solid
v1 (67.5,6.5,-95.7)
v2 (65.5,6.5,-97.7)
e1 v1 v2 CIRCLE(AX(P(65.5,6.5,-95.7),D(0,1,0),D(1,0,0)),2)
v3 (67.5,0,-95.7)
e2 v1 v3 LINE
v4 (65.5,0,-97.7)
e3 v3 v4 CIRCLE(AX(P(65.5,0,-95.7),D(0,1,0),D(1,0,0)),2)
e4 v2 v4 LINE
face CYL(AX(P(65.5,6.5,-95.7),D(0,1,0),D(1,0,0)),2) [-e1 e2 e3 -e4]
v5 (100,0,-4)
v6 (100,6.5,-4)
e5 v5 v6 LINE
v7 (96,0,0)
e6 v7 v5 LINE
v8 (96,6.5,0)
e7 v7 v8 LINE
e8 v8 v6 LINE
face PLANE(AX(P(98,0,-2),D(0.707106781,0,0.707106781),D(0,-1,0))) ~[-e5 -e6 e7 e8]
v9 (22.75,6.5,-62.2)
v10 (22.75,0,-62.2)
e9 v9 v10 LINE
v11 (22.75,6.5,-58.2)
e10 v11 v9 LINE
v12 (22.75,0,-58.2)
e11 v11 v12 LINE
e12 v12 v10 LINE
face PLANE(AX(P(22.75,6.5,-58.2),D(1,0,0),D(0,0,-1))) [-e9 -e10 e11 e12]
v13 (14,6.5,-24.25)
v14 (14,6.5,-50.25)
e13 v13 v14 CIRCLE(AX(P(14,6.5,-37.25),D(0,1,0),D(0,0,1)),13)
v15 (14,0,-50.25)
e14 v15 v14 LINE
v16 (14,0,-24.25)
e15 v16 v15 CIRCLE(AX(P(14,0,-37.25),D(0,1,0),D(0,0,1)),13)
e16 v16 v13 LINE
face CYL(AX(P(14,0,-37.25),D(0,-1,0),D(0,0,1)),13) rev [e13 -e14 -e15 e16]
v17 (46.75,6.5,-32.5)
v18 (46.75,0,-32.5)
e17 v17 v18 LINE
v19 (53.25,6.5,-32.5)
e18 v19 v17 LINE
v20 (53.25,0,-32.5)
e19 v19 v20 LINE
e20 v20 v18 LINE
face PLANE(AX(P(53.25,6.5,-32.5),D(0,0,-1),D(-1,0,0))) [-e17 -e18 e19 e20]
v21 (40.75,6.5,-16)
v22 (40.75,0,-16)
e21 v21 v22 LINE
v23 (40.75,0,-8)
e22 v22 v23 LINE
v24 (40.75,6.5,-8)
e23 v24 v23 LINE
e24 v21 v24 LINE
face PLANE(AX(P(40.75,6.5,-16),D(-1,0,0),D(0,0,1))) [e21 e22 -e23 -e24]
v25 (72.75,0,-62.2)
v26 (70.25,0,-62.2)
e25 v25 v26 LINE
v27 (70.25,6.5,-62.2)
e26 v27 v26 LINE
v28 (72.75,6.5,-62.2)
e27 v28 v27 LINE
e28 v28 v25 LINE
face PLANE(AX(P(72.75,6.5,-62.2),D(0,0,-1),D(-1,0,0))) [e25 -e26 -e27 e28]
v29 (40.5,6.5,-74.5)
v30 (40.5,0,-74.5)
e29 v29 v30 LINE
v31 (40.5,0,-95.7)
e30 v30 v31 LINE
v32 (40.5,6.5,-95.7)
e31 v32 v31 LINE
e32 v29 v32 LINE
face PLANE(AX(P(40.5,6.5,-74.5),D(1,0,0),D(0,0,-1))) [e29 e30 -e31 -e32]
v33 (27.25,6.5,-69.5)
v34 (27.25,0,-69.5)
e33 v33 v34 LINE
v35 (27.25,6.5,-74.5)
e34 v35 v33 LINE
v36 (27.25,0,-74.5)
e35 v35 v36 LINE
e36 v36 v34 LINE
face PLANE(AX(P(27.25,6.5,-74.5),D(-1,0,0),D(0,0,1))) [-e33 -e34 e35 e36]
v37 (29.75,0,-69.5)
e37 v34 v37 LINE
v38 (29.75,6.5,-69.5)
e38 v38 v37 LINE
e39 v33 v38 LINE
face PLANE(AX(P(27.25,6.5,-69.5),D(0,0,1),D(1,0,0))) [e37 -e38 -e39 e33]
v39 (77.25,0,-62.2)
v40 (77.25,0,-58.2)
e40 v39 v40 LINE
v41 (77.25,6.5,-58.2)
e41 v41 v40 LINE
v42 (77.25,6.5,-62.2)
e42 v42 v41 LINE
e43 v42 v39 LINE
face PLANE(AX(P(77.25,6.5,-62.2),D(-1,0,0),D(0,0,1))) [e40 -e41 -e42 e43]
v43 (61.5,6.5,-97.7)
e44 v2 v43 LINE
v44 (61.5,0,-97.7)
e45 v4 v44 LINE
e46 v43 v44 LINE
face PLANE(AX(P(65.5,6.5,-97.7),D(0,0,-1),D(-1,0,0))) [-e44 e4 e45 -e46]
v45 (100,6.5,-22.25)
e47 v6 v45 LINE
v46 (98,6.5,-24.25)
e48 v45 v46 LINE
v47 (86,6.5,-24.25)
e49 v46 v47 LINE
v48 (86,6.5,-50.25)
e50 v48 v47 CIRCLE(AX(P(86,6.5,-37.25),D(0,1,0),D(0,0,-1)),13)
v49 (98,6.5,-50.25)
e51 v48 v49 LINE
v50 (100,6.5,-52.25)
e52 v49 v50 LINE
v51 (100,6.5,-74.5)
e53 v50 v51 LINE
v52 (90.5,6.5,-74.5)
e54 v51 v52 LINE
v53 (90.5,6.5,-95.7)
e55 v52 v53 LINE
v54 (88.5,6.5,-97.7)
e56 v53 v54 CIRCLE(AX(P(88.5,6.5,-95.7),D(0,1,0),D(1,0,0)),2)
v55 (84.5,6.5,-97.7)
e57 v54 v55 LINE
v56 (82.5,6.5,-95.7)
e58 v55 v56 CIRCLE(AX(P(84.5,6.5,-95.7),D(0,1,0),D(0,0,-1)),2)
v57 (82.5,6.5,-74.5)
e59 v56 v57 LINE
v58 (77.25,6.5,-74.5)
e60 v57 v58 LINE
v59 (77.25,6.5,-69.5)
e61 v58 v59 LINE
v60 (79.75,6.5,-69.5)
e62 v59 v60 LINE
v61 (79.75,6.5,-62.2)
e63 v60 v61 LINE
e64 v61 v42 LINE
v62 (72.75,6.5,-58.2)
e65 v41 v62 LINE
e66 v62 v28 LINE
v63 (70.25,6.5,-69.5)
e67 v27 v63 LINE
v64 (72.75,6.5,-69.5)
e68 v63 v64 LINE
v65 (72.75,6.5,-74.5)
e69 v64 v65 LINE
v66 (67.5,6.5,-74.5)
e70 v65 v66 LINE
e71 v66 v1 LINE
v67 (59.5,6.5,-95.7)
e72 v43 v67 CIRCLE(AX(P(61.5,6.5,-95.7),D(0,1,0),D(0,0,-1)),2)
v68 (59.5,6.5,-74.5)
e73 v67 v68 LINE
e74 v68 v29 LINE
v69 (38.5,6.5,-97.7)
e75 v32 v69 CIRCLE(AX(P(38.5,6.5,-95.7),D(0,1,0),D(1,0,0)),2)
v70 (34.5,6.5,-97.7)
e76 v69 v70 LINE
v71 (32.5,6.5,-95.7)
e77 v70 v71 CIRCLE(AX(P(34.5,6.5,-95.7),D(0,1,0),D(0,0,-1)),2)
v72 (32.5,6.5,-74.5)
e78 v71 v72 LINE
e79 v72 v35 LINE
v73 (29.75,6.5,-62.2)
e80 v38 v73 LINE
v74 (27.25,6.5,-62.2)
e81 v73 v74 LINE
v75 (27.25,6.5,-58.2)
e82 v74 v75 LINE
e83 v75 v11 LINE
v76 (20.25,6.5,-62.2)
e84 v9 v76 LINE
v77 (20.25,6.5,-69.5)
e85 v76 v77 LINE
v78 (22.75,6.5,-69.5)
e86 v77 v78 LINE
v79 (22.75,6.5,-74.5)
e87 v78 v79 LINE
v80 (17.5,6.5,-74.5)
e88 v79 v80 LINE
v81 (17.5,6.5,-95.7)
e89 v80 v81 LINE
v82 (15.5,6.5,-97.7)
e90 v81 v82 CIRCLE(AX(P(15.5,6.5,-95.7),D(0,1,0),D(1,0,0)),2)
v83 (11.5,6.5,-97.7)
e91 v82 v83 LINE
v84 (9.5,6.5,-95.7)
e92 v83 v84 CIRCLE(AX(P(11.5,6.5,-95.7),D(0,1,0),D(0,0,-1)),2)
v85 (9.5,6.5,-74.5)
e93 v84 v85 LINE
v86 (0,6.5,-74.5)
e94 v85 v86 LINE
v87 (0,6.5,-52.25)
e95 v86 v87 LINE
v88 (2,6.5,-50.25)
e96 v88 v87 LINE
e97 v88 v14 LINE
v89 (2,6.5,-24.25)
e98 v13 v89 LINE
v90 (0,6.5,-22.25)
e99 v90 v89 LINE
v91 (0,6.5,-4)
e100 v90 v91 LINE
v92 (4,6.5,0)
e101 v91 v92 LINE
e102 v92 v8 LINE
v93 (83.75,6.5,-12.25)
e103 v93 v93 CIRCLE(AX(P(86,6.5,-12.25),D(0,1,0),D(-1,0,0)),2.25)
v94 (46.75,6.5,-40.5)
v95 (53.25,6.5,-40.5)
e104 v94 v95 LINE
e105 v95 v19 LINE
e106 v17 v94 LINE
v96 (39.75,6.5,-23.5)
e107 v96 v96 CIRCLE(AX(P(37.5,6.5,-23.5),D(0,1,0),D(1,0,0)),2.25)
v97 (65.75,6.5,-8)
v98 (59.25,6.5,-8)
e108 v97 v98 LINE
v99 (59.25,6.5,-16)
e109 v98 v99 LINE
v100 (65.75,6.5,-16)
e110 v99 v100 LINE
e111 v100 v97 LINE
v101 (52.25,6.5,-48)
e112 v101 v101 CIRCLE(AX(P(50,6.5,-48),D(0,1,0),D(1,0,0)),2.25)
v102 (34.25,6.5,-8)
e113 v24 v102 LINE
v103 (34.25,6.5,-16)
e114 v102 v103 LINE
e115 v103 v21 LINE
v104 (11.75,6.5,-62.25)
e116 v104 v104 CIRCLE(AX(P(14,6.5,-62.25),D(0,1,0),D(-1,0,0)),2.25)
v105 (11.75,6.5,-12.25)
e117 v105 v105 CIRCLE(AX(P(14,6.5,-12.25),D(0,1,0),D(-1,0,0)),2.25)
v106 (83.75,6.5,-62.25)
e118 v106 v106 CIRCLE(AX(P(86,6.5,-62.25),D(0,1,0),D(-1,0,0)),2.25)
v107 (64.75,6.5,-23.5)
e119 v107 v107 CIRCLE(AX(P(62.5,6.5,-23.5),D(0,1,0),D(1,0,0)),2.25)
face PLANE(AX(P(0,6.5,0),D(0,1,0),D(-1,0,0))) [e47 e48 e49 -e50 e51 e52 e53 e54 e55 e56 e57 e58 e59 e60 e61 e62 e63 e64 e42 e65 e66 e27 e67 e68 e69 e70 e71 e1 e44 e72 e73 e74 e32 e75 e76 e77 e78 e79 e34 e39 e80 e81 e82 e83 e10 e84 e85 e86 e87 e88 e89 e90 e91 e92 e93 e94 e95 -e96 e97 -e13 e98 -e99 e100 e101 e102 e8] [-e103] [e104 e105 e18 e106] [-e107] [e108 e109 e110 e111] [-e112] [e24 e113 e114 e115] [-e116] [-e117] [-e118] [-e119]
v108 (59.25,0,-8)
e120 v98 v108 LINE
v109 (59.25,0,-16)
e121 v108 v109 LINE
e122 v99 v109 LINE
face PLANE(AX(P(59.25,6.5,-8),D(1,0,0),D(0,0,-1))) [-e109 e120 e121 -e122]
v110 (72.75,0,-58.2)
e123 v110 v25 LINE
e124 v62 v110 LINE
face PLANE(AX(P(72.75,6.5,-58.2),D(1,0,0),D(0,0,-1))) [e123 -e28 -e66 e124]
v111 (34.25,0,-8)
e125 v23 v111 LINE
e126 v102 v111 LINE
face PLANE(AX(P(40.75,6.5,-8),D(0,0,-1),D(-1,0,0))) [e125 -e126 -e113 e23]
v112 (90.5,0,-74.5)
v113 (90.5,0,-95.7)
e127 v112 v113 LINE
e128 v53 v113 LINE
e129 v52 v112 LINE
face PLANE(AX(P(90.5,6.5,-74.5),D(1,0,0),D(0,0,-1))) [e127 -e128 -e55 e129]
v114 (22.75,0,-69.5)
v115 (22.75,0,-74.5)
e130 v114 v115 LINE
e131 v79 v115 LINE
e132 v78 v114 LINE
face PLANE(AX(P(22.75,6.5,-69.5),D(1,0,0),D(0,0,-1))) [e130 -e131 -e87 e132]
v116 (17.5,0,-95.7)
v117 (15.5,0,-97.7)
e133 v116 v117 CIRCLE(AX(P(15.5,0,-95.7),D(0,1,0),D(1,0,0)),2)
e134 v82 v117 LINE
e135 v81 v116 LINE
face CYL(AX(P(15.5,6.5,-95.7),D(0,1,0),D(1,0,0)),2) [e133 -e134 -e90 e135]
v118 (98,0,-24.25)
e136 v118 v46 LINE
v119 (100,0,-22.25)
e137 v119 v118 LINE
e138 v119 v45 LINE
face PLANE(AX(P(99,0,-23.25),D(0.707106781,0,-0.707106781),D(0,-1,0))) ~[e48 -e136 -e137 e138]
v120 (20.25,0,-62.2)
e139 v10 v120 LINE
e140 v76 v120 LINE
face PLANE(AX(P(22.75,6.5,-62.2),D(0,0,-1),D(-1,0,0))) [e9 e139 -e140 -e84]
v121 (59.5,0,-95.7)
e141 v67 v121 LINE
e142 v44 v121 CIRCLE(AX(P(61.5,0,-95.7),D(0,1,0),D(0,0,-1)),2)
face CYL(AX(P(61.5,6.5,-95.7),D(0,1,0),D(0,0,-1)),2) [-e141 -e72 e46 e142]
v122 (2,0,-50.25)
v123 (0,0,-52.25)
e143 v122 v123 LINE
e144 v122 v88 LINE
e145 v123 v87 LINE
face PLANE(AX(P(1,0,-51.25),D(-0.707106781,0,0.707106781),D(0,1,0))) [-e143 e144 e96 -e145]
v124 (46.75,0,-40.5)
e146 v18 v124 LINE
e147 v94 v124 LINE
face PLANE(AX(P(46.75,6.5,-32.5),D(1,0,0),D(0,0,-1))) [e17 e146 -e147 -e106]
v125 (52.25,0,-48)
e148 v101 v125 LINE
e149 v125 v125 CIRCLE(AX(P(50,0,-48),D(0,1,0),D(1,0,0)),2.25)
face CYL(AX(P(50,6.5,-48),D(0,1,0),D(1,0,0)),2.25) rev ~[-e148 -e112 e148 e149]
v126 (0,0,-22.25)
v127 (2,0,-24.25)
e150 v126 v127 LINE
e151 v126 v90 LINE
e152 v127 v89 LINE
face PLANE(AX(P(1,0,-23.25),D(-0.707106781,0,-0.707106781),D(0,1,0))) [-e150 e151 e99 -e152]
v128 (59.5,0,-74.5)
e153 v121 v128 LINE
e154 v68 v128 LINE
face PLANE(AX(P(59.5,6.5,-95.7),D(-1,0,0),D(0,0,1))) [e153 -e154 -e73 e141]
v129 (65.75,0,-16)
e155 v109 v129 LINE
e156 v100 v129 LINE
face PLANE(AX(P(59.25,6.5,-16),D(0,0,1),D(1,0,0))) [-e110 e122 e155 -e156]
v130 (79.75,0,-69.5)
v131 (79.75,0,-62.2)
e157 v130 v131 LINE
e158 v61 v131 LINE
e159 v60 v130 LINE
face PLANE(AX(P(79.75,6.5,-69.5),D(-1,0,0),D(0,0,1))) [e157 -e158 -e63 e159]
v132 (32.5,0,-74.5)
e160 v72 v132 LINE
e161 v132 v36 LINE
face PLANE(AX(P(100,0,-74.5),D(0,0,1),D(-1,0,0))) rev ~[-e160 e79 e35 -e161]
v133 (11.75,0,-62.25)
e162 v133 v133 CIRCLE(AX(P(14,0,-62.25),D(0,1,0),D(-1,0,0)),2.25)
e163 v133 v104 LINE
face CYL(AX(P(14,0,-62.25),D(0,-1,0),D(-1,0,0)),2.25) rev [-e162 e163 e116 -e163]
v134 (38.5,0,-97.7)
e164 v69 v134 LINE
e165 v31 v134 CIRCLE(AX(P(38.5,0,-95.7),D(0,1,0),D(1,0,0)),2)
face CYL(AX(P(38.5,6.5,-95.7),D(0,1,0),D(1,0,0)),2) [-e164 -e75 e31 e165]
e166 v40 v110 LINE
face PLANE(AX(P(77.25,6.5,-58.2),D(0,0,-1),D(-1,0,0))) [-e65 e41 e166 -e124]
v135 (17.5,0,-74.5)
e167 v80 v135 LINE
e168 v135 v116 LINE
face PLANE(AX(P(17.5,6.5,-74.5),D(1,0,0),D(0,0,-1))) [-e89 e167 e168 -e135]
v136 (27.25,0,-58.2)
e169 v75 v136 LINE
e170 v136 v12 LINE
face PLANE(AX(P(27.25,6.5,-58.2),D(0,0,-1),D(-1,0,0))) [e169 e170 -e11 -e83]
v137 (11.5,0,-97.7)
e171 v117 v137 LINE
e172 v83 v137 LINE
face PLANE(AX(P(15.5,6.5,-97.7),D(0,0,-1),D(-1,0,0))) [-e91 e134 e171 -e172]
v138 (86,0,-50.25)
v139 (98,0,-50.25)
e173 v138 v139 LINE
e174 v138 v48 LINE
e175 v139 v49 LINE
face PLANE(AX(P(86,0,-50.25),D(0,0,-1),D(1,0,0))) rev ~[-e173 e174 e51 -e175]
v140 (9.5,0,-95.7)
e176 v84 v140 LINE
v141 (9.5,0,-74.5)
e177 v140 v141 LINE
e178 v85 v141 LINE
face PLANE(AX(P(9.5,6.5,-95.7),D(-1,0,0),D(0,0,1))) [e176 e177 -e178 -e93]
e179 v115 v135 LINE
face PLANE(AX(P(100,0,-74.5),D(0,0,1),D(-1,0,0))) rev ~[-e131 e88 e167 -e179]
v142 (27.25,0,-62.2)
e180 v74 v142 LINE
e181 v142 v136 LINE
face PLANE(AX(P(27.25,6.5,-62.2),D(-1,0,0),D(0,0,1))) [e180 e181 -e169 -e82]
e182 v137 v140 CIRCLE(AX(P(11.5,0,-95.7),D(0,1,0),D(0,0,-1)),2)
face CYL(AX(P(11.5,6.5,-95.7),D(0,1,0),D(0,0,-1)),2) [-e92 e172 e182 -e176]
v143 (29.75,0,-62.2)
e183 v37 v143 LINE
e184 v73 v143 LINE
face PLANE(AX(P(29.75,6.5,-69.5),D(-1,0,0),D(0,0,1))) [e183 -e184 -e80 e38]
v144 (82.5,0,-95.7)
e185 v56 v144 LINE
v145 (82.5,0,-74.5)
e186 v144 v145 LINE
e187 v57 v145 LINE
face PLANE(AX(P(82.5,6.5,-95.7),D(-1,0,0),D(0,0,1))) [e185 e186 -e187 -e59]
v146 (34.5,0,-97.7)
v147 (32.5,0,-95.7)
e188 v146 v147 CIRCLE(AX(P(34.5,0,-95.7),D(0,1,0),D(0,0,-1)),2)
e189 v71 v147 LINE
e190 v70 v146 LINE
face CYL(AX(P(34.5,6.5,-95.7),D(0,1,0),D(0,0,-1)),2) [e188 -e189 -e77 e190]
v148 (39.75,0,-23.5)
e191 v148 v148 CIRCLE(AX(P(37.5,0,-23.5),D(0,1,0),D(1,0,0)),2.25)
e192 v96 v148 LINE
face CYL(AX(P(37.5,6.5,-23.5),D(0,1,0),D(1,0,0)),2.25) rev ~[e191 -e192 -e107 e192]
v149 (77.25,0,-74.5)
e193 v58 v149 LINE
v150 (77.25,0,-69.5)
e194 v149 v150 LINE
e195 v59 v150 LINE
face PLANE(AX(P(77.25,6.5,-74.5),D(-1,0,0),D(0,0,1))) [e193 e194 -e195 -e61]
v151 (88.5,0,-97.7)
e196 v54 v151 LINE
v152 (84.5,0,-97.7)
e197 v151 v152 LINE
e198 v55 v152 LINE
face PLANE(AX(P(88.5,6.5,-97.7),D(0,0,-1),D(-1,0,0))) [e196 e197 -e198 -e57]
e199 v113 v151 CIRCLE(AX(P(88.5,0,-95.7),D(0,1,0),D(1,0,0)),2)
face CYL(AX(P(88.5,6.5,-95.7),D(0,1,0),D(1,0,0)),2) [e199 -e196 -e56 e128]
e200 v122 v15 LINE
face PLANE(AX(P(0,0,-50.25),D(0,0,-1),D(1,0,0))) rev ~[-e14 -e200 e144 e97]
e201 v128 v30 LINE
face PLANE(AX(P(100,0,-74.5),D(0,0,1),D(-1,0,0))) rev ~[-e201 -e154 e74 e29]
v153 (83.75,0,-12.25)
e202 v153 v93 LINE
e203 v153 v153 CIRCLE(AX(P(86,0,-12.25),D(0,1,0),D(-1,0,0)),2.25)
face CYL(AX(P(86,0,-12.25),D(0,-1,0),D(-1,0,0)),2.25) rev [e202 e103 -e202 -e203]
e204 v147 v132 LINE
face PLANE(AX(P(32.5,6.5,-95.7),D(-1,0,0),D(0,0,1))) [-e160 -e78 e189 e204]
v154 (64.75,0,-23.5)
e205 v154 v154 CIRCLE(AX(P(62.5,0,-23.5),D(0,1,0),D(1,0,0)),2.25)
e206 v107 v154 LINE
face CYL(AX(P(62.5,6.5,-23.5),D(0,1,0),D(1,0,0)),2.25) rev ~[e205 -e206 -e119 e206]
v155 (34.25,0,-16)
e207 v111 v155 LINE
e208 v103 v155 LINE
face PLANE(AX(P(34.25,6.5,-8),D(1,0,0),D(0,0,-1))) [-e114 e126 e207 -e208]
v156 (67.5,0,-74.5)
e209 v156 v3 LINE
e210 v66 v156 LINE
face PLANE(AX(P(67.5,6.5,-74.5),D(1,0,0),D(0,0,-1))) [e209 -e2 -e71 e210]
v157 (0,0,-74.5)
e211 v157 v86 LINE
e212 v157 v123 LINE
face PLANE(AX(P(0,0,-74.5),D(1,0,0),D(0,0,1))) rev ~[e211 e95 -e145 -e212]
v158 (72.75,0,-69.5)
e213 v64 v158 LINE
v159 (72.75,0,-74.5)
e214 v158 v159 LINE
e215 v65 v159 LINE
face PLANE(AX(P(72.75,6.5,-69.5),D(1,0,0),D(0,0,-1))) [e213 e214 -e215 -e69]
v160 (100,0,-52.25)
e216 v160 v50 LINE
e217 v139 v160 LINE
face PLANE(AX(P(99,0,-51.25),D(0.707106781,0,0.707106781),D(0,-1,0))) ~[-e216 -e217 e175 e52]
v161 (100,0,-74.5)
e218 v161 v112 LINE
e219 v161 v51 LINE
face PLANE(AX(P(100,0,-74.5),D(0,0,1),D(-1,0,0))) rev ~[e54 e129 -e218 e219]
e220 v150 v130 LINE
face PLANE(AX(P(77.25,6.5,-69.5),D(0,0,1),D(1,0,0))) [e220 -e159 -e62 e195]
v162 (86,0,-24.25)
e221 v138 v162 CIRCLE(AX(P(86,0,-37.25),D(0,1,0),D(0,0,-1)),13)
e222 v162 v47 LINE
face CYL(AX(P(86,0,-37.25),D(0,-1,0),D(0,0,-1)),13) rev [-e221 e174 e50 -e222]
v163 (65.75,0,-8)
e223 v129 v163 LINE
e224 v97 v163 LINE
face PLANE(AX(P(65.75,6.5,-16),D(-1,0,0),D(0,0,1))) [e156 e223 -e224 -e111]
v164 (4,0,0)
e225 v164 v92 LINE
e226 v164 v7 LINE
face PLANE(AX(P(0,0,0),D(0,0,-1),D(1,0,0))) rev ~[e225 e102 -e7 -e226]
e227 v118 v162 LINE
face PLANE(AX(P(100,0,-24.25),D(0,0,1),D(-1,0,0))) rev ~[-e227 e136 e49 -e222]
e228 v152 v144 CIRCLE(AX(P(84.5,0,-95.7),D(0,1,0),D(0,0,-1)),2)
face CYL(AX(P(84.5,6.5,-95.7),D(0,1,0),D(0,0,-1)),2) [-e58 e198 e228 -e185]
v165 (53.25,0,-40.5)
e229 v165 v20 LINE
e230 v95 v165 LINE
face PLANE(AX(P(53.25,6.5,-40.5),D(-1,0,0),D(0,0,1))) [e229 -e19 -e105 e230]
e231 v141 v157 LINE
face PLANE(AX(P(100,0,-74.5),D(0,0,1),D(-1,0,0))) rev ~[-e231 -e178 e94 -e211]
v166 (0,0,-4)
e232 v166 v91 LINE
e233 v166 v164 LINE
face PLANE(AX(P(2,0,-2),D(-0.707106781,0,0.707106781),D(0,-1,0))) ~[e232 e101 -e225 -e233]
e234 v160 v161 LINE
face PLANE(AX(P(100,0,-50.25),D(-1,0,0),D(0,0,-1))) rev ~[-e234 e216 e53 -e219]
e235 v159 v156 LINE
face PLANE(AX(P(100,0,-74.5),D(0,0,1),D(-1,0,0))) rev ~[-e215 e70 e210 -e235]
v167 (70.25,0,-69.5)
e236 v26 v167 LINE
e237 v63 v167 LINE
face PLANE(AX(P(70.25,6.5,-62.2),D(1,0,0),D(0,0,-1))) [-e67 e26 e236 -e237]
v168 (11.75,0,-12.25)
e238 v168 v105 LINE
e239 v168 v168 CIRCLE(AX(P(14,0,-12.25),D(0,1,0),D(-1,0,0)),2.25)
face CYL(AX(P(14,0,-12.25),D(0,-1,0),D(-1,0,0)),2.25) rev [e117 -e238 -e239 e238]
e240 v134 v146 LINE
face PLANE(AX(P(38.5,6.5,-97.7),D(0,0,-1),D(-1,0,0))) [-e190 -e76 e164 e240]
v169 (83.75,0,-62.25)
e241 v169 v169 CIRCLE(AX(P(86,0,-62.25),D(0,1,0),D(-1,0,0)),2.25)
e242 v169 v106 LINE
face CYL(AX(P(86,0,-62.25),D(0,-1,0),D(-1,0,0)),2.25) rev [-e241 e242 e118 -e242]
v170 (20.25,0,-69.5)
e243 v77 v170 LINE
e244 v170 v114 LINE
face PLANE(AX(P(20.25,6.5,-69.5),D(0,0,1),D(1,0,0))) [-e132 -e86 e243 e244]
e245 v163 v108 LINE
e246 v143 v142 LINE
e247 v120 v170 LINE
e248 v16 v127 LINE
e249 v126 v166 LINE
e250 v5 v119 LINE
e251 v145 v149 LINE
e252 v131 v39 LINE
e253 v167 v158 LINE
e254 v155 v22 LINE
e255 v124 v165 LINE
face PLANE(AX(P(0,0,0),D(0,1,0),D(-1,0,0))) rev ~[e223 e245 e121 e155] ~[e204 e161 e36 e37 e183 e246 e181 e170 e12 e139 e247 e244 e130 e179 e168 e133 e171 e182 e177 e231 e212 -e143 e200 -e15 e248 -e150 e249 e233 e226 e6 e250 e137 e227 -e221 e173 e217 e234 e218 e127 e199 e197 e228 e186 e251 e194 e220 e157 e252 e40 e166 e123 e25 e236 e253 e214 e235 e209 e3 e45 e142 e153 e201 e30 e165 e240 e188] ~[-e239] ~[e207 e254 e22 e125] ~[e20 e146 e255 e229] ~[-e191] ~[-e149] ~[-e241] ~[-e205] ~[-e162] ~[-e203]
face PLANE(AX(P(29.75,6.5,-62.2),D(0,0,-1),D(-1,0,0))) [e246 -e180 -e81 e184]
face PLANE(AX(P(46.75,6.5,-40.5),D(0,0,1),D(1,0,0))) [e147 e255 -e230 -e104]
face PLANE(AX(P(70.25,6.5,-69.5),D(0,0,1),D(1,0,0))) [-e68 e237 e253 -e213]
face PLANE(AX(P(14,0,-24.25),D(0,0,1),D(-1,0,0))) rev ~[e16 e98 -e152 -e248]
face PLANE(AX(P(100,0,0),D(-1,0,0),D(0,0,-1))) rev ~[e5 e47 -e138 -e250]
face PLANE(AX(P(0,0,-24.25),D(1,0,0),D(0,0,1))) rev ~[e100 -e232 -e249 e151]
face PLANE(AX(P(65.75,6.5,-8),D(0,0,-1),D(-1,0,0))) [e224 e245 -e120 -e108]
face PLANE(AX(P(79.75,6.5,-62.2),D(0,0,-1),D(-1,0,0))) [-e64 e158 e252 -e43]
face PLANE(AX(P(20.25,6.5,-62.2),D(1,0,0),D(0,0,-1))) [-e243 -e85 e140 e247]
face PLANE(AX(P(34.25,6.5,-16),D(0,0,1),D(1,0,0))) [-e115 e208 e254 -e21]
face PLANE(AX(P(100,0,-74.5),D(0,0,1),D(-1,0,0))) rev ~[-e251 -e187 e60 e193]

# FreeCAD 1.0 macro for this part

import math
import FreeCAD as App
import Part
import Sketcher


def edges_at(feature, points):
    """Names of the edges that pass closest to the given points."""
    edges = feature.Shape.Edges
    near = lambda p: min(range(len(edges)), key=lambda i: edges[i].distToShape(Part.Vertex(*p))[0])
    return sorted({f"Edge{near(p) + 1}" for p in points})


def add_polygon(sketch, points):
    """Adds a closed chain of lines whose ends are joined by coincident constraints."""
    first, n = sketch.GeometryCount, len(points)
    for a, b in zip(points, points[1:] + points[:1]):
        sketch.addGeometry(Part.LineSegment(App.Vector(*a, 0), App.Vector(*b, 0)), False)
    for i in range(n):
        sketch.addConstraint(Sketcher.Constraint("Coincident", first + i, 2, first + (i + 1) % n, 1))

doc = App.newDocument("Part")
params = doc.addObject("Spreadsheet::Sheet", "Params")
for row, (alias, value) in enumerate([
    ("sketch1_radius", "13 mm"),
    ("sketch1_diameter", "4.5 mm"),
    ("sketch1_width", "100 mm"),
    ("sketch1_width2", "14 mm"),
    ("pad1_length", "6.5 mm"),
    ("sketch2_height", "5 mm"),
    ("sketch2_height2", "4 mm"),
    ("sketch2_width", "4.5 mm"),
    ("sketch2_width2", "2.5 mm"),
    ("sketch2_height3", "7.3 mm"),
    ("sketch3_radius", "2 mm"),
    ("sketch3_width", "8 mm"),
    ("pad2_length", "6.5 mm"),
    ("chamfer_size", "4 mm"),
    ("chamfer2_size", "2 mm"),
    ("sketch4_diameter", "4.5 mm"),
    ("sketch4_height", "8 mm"),
    ("sketch4_width", "6.5 mm"),
    ("sketch5_diameter", "4.5 mm"),
    ("sketch5_height", "8 mm"),
    ("sketch5_width", "6.5 mm"),
], start=1):
    params.set(f"A{row}", alias)
    params.set(f"B{row}", "=" + value)
    params.setAlias(f"B{row}", alias)

body = doc.addObject("PartDesign::Body", "Body")

# Sketch on XZ plane
sketch1 = body.newObject("Sketcher::SketchObject", "Sketch")
sketch1.AttachmentSupport = (doc.getObject("XZ_Plane"), [""])
sketch1.MapMode = "FlatFace"
sketch1.addGeometry(Part.LineSegment(App.Vector(0, -24.2, 0), App.Vector(0, 0, 0)), False)
sketch1.addGeometry(Part.LineSegment(App.Vector(0, 0, 0), App.Vector(100, 0, 0)), False)
sketch1.addGeometry(Part.LineSegment(App.Vector(100, 0, 0), App.Vector(100, -24.2, 0)), False)
sketch1.addGeometry(Part.LineSegment(App.Vector(100, -24.2, 0), App.Vector(86, -24.2, 0)), False)
sketch1.addGeometry(Part.ArcOfCircle(Part.Circle(App.Vector(86, -37.2, 0), App.Vector(0, 0, 1), 13), math.radians(90), math.radians(270)), False)
sketch1.addGeometry(Part.LineSegment(App.Vector(86, -50.2, 0), App.Vector(100, -50.2, 0)), False)
sketch1.addGeometry(Part.LineSegment(App.Vector(100, -50.2, 0), App.Vector(100, -74.5, 0)), False)
sketch1.addGeometry(Part.LineSegment(App.Vector(100, -74.5, 0), App.Vector(0, -74.5, 0)), False)
sketch1.addGeometry(Part.LineSegment(App.Vector(0, -74.5, 0), App.Vector(0, -50.2, 0)), False)
sketch1.addGeometry(Part.LineSegment(App.Vector(0, -50.2, 0), App.Vector(14, -50.2, 0)), False)
sketch1.addGeometry(Part.ArcOfCircle(Part.Circle(App.Vector(14, -37.2, 0), App.Vector(0, 0, 1), 13), math.radians(-90), math.radians(90)), False)
sketch1.addGeometry(Part.LineSegment(App.Vector(14, -24.2, 0), App.Vector(0, -24.2, 0)), False)
sketch1.addGeometry(Part.Circle(App.Vector(86, -62.2, 0), App.Vector(0, 0, 1), 2.2), False)
sketch1.addGeometry(Part.Circle(App.Vector(14, -62.2, 0), App.Vector(0, 0, 1), 2.2), False)
sketch1.addGeometry(Part.Circle(App.Vector(86, -12.2, 0), App.Vector(0, 0, 1), 2.2), False)
sketch1.addGeometry(Part.Circle(App.Vector(14, -12.2, 0), App.Vector(0, 0, 1), 2.2), False)
sketch1.addConstraint(Sketcher.Constraint("Coincident", 0, 2, 1, 1))
sketch1.addConstraint(Sketcher.Constraint("Coincident", 1, 2, 2, 1))
sketch1.addConstraint(Sketcher.Constraint("Coincident", 2, 2, 3, 1))
sketch1.addConstraint(Sketcher.Constraint("Tangent", 3, 2, 4, 1))
sketch1.addConstraint(Sketcher.Constraint("Tangent", 4, 2, 5, 1))
sketch1.addConstraint(Sketcher.Constraint("Coincident", 5, 2, 6, 1))
sketch1.addConstraint(Sketcher.Constraint("Coincident", 6, 2, 7, 1))
sketch1.addConstraint(Sketcher.Constraint("Coincident", 7, 2, 8, 1))
sketch1.addConstraint(Sketcher.Constraint("Coincident", 8, 2, 9, 1))
sketch1.addConstraint(Sketcher.Constraint("Tangent", 9, 2, 10, 1))
sketch1.addConstraint(Sketcher.Constraint("Tangent", 10, 2, 11, 1))
sketch1.addConstraint(Sketcher.Constraint("Coincident", 11, 2, 0, 1))
sketch1.addConstraint(Sketcher.Constraint("Vertical", 0))
sketch1.addConstraint(Sketcher.Constraint("Horizontal", 1))
sketch1.addConstraint(Sketcher.Constraint("Vertical", 2))
sketch1.addConstraint(Sketcher.Constraint("Horizontal", 3))
sketch1.addConstraint(Sketcher.Constraint("Horizontal", 5))
sketch1.addConstraint(Sketcher.Constraint("Vertical", 6))
sketch1.addConstraint(Sketcher.Constraint("Horizontal", 7))
sketch1.addConstraint(Sketcher.Constraint("Vertical", 8))
sketch1.addConstraint(Sketcher.Constraint("Horizontal", 9))
sketch1.addConstraint(Sketcher.Constraint("Horizontal", 11))
sketch1.addConstraint(Sketcher.Constraint("Coincident", 0, 2, -1, 1))
sketch1.addConstraint(Sketcher.Constraint("Equal", 4, 10))
sketch1.addConstraint(Sketcher.Constraint("Equal", 12, 13))
sketch1.addConstraint(Sketcher.Constraint("Equal", 13, 14))
sketch1.addConstraint(Sketcher.Constraint("Equal", 14, 15))
sketch1.addConstraint(Sketcher.Constraint("PointOnObject", 7, 2, -2))
sketch1.addConstraint(Sketcher.Constraint("Horizontal", 4, 3, 10, 3))
sketch1.addConstraint(Sketcher.Constraint("Horizontal", 12, 3, 13, 3))
sketch1.addConstraint(Sketcher.Constraint("Horizontal", 14, 3, 15, 3))
sketch1.addConstraint(Sketcher.Constraint("Vertical", 4, 3, 12, 3))
sketch1.addConstraint(Sketcher.Constraint("Vertical", 10, 3, 13, 3))
sketch1.addConstraint(Sketcher.Constraint("Vertical", 12, 3, 14, 3))
sketch1.addConstraint(Sketcher.Constraint("Vertical", 13, 3, 15, 3))
sketch1.addConstraint(Sketcher.Constraint("Vertical", 2, 2, 5, 2))
sketch1.addConstraint(Sketcher.Constraint("Equal", 5, 9))
sketch1.addConstraint(Sketcher.Constraint("Equal", 2, 6))
sketch1.addConstraint(Sketcher.Constraint("Radius", 4, 13.0))
sketch1.addConstraint(Sketcher.Constraint("Diameter", 12, 4.5))
sketch1.addConstraint(Sketcher.Constraint("DistanceX", 1, 1, 1, 2, 100.0))
sketch1.addConstraint(Sketcher.Constraint("DistanceX", 3, 2, 3, 1, 14.0))
sketch1.addConstraint(Sketcher.Constraint("DistanceY", 12, 3, 4, 3, 25.0))
sketch1.addConstraint(Sketcher.Constraint("DistanceY", 4, 3, 14, 3, 25.0))
sketch1.addConstraint(Sketcher.Constraint("DistanceY", 14, 3, -1, 1, 12.25))
sketch1.setExpression("Constraints[38]", "Params.sketch1_radius")
sketch1.setExpression("Constraints[39]", "Params.sketch1_diameter")
sketch1.setExpression("Constraints[40]", "Params.sketch1_width")
sketch1.setExpression("Constraints[41]", "Params.sketch1_width2")
pad1 = body.newObject("PartDesign::Pad", "Pad")
pad1.Profile = sketch1
pad1.setExpression("Length", "Params.pad1_length")
pad1.Reversed = True

# Sketch on XZ plane
sketch2 = body.newObject("Sketcher::SketchObject", "Sketch001")
sketch2.AttachmentSupport = (doc.getObject("XZ_Plane"), [""])
sketch2.MapMode = "FlatFace"
sketch2.AttachmentOffset = App.Placement(App.Vector(0, 0, -6.5), App.Rotation())
add_polygon(sketch2, [(77.2, -69.5), (77.2, -74.5), (72.8, -74.5), (72.8, -69.5), (70.2, -69.5), (70.2, -62.2), (72.8, -62.2), (72.8, -58.2), (77.2, -58.2), (77.2, -62.2), (79.8, -62.2), (79.8, -69.5)])  # lines 0-11
add_polygon(sketch2, [(27.2, -69.5), (27.2, -74.5), (22.8, -74.5), (22.8, -69.5), (20.2, -69.5), (20.2, -62.2), (22.8, -62.2), (22.8, -58.2), (27.2, -58.2), (27.2, -62.2), (29.8, -62.2), (29.8, -69.5)])  # lines 12-23
sketch2.addConstraint(Sketcher.Constraint("Vertical", 0))
sketch2.addConstraint(Sketcher.Constraint("Horizontal", 1))
sketch2.addConstraint(Sketcher.Constraint("Vertical", 2))
sketch2.addConstraint(Sketcher.Constraint("Horizontal", 3))
sketch2.addConstraint(Sketcher.Constraint("Vertical", 4))
sketch2.addConstraint(Sketcher.Constraint("Horizontal", 5))
sketch2.addConstraint(Sketcher.Constraint("Vertical", 6))
sketch2.addConstraint(Sketcher.Constraint("Horizontal", 7))
sketch2.addConstraint(Sketcher.Constraint("Vertical", 8))
sketch2.addConstraint(Sketcher.Constraint("Horizontal", 9))
sketch2.addConstraint(Sketcher.Constraint("Vertical", 10))
sketch2.addConstraint(Sketcher.Constraint("Horizontal", 11))
sketch2.addConstraint(Sketcher.Constraint("Vertical", 12))
sketch2.addConstraint(Sketcher.Constraint("Horizontal", 13))
sketch2.addConstraint(Sketcher.Constraint("Vertical", 14))
sketch2.addConstraint(Sketcher.Constraint("Horizontal", 15))
sketch2.addConstraint(Sketcher.Constraint("Vertical", 16))
sketch2.addConstraint(Sketcher.Constraint("Horizontal", 17))
sketch2.addConstraint(Sketcher.Constraint("Vertical", 18))
sketch2.addConstraint(Sketcher.Constraint("Horizontal", 19))
sketch2.addConstraint(Sketcher.Constraint("Vertical", 20))
sketch2.addConstraint(Sketcher.Constraint("Horizontal", 21))
sketch2.addConstraint(Sketcher.Constraint("Vertical", 22))
sketch2.addConstraint(Sketcher.Constraint("Horizontal", 23))
sketch2.addConstraint(Sketcher.Constraint("Horizontal", 5, 2, 8, 2))
sketch2.addConstraint(Sketcher.Constraint("Horizontal", 3, 2, 10, 2))
sketch2.addConstraint(Sketcher.Constraint("Horizontal", 1, 2, 12, 2))
sketch2.addConstraint(Sketcher.Constraint("Horizontal", 11, 2, 14, 2))
sketch2.addConstraint(Sketcher.Constraint("Horizontal", 9, 2, 16, 2))
sketch2.addConstraint(Sketcher.Constraint("Horizontal", 7, 2, 18, 2))
sketch2.addConstraint(Sketcher.Constraint("Horizontal", 17, 2, 20, 2))
sketch2.addConstraint(Sketcher.Constraint("Horizontal", 15, 2, 22, 2))
sketch2.addConstraint(Sketcher.Constraint("Vertical", 2, 2, 5, 2))
sketch2.addConstraint(Sketcher.Constraint("Vertical", 0, 2, 7, 2))
sketch2.addConstraint(Sketcher.Constraint("Vertical", 14, 2, 17, 2))
sketch2.addConstraint(Sketcher.Constraint("Vertical", 12, 2, 19, 2))
sketch2.addConstraint(Sketcher.Constraint("Equal", 5, 9))
sketch2.addConstraint(Sketcher.Constraint("Equal", 7, 13))
sketch2.addConstraint(Sketcher.Constraint("Equal", 11, 15))
sketch2.addConstraint(Sketcher.Constraint("Equal", 17, 21))
sketch2.addConstraint(Sketcher.Constraint("DistanceY", 0, 2, 0, 1, 5.0))
sketch2.addConstraint(Sketcher.Constraint("DistanceY", 6, 1, 6, 2, 4.0))
sketch2.addConstraint(Sketcher.Constraint("DistanceX", 1, 2, 1, 1, 4.5))
sketch2.addConstraint(Sketcher.Constraint("DistanceX", 3, 2, 3, 1, 2.5))
sketch2.addConstraint(Sketcher.Constraint("DistanceY", 4, 1, 4, 2, 7.3))
sketch2.addConstraint(Sketcher.Constraint("DistanceX", 13, 2, 1, 2, 50.0))
sketch2.addConstraint(Sketcher.Constraint("DistanceY", 0, 2, -1, 1, 74.5))
sketch2.addConstraint(Sketcher.Constraint("DistanceX", -1, 1, 0, 2, 77.25))
sketch2.setExpression("Constraints[64]", "Params.sketch2_height")
sketch2.setExpression("Constraints[65]", "Params.sketch2_height2")
sketch2.setExpression("Constraints[66]", "Params.sketch2_width")
sketch2.setExpression("Constraints[67]", "Params.sketch2_width2")
sketch2.setExpression("Constraints[68]", "Params.sketch2_height3")
pocket1 = body.newObject("PartDesign::Pocket", "Pocket")
pocket1.Profile = sketch2
pocket1.Type = "ThroughAll"
pocket1.Reversed = True

# Sketch on XZ plane
sketch3 = body.newObject("Sketcher::SketchObject", "Sketch002")
sketch3.AttachmentSupport = (doc.getObject("XZ_Plane"), [""])
sketch3.MapMode = "FlatFace"
sketch3.AttachmentOffset = App.Placement(App.Vector(0, 0, -6.5), App.Rotation())
sketch3.addGeometry(Part.LineSegment(App.Vector(9.5, -74.5, 0), App.Vector(17.5, -74.5, 0)), False)
sketch3.addGeometry(Part.LineSegment(App.Vector(17.5, -74.5, 0), App.Vector(17.5, -95.7, 0)), False)
sketch3.addGeometry(Part.ArcOfCircle(Part.Circle(App.Vector(15.5, -95.7, 0), App.Vector(0, 0, 1), 2), math.radians(-90), math.radians(0)), False)
sketch3.addGeometry(Part.LineSegment(App.Vector(15.5, -97.7, 0), App.Vector(11.5, -97.7, 0)), False)
sketch3.addGeometry(Part.ArcOfCircle(Part.Circle(App.Vector(11.5, -95.7, 0), App.Vector(0, 0, 1), 2), math.radians(180), math.radians(270)), False)
sketch3.addGeometry(Part.LineSegment(App.Vector(9.5, -95.7, 0), App.Vector(9.5, -74.5, 0)), False)
sketch3.addGeometry(Part.LineSegment(App.Vector(82.5, -74.5, 0), App.Vector(90.5, -74.5, 0)), False)
sketch3.addGeometry(Part.LineSegment(App.Vector(90.5, -74.5, 0), App.Vector(90.5, -95.7, 0)), False)
sketch3.addGeometry(Part.ArcOfCircle(Part.Circle(App.Vector(88.5, -95.7, 0), App.Vector(0, 0, 1), 2), math.radians(-90), math.radians(0)), False)
sketch3.addGeometry(Part.LineSegment(App.Vector(88.5, -97.7, 0), App.Vector(84.5, -97.7, 0)), False)
sketch3.addGeometry(Part.ArcOfCircle(Part.Circle(App.Vector(84.5, -95.7, 0), App.Vector(0, 0, 1), 2), math.radians(180), math.radians(270)), False)
sketch3.addGeometry(Part.LineSegment(App.Vector(82.5, -95.7, 0), App.Vector(82.5, -74.5, 0)), False)
sketch3.addGeometry(Part.LineSegment(App.Vector(32.5, -74.5, 0), App.Vector(40.5, -74.5, 0)), False)
sketch3.addGeometry(Part.LineSegment(App.Vector(40.5, -74.5, 0), App.Vector(40.5, -95.7, 0)), False)
sketch3.addGeometry(Part.ArcOfCircle(Part.Circle(App.Vector(38.5, -95.7, 0), App.Vector(0, 0, 1), 2), math.radians(-90), math.radians(0)), False)
sketch3.addGeometry(Part.LineSegment(App.Vector(38.5, -97.7, 0), App.Vector(34.5, -97.7, 0)), False)
sketch3.addGeometry(Part.ArcOfCircle(Part.Circle(App.Vector(34.5, -95.7, 0), App.Vector(0, 0, 1), 2), math.radians(180), math.radians(270)), False)
sketch3.addGeometry(Part.LineSegment(App.Vector(32.5, -95.7, 0), App.Vector(32.5, -74.5, 0)), False)
sketch3.addGeometry(Part.LineSegment(App.Vector(59.5, -74.5, 0), App.Vector(67.5, -74.5, 0)), False)
sketch3.addGeometry(Part.LineSegment(App.Vector(67.5, -74.5, 0), App.Vector(67.5, -95.7, 0)), False)
sketch3.addGeometry(Part.ArcOfCircle(Part.Circle(App.Vector(65.5, -95.7, 0), App.Vector(0, 0, 1), 2), math.radians(-90), math.radians(0)), False)
sketch3.addGeometry(Part.LineSegment(App.Vector(65.5, -97.7, 0), App.Vector(61.5, -97.7, 0)), False)
sketch3.addGeometry(Part.ArcOfCircle(Part.Circle(App.Vector(61.5, -95.7, 0), App.Vector(0, 0, 1), 2), math.radians(180), math.radians(270)), False)
sketch3.addGeometry(Part.LineSegment(App.Vector(59.5, -95.7, 0), App.Vector(59.5, -74.5, 0)), False)
sketch3.addConstraint(Sketcher.Constraint("Coincident", 0, 2, 1, 1))
sketch3.addConstraint(Sketcher.Constraint("Tangent", 1, 2, 2, 2))
sketch3.addConstraint(Sketcher.Constraint("Tangent", 2, 1, 3, 1))
sketch3.addConstraint(Sketcher.Constraint("Tangent", 3, 2, 4, 2))
sketch3.addConstraint(Sketcher.Constraint("Tangent", 4, 1, 5, 1))
sketch3.addConstraint(Sketcher.Constraint("Coincident", 5, 2, 0, 1))
sketch3.addConstraint(Sketcher.Constraint("Coincident", 6, 2, 7, 1))
sketch3.addConstraint(Sketcher.Constraint("Tangent", 7, 2, 8, 2))
sketch3.addConstraint(Sketcher.Constraint("Tangent", 8, 1, 9, 1))
sketch3.addConstraint(Sketcher.Constraint("Tangent", 9, 2, 10, 2))
sketch3.addConstraint(Sketcher.Constraint("Tangent", 10, 1, 11, 1))
sketch3.addConstraint(Sketcher.Constraint("Coincident", 11, 2, 6, 1))
sketch3.addConstraint(Sketcher.Constraint("Coincident", 12, 2, 13, 1))
sketch3.addConstraint(Sketcher.Constraint("Tangent", 13, 2, 14, 2))
sketch3.addConstraint(Sketcher.Constraint("Tangent", 14, 1, 15, 1))
sketch3.addConstraint(Sketcher.Constraint("Tangent", 15, 2, 16, 2))
sketch3.addConstraint(Sketcher.Constraint("Tangent", 16, 1, 17, 1))
sketch3.addConstraint(Sketcher.Constraint("Coincident", 17, 2, 12, 1))
sketch3.addConstraint(Sketcher.Constraint("Coincident", 18, 2, 19, 1))
sketch3.addConstraint(Sketcher.Constraint("Tangent", 19, 2, 20, 2))
sketch3.addConstraint(Sketcher.Constraint("Tangent", 20, 1, 21, 1))
sketch3.addConstraint(Sketcher.Constraint("Tangent", 21, 2, 22, 2))
sketch3.addConstraint(Sketcher.Constraint("Tangent", 22, 1, 23, 1))
sketch3.addConstraint(Sketcher.Constraint("Coincident", 23, 2, 18, 1))
sketch3.addConstraint(Sketcher.Constraint("Horizontal", 0))
sketch3.addConstraint(Sketcher.Constraint("Vertical", 1))
sketch3.addConstraint(Sketcher.Constraint("Horizontal", 3))
sketch3.addConstraint(Sketcher.Constraint("Vertical", 5))
sketch3.addConstraint(Sketcher.Constraint("Horizontal", 6))
sketch3.addConstraint(Sketcher.Constraint("Vertical", 7))
sketch3.addConstraint(Sketcher.Constraint("Horizontal", 9))
sketch3.addConstraint(Sketcher.Constraint("Vertical", 11))
sketch3.addConstraint(Sketcher.Constraint("Horizontal", 12))
sketch3.addConstraint(Sketcher.Constraint("Vertical", 13))
sketch3.addConstraint(Sketcher.Constraint("Horizontal", 15))
sketch3.addConstraint(Sketcher.Constraint("Vertical", 17))
sketch3.addConstraint(Sketcher.Constraint("Horizontal", 18))
sketch3.addConstraint(Sketcher.Constraint("Vertical", 19))
sketch3.addConstraint(Sketcher.Constraint("Horizontal", 21))
sketch3.addConstraint(Sketcher.Constraint("Vertical", 23))
sketch3.addConstraint(Sketcher.Constraint("Equal", 2, 4))
sketch3.addConstraint(Sketcher.Constraint("Equal", 4, 8))
sketch3.addConstraint(Sketcher.Constraint("Equal", 8, 10))
sketch3.addConstraint(Sketcher.Constraint("Equal", 10, 14))
sketch3.addConstraint(Sketcher.Constraint("Equal", 14, 16))
sketch3.addConstraint(Sketcher.Constraint("Equal", 16, 20))
sketch3.addConstraint(Sketcher.Constraint("Equal", 20, 22))
sketch3.addConstraint(Sketcher.Constraint("Horizontal", 4, 3, 8, 3))
sketch3.addConstraint(Sketcher.Constraint("Horizontal", 10, 3, 14, 3))
sketch3.addConstraint(Sketcher.Constraint("Horizontal", 16, 3, 20, 3))
sketch3.addConstraint(Sketcher.Constraint("Horizontal", 5, 2, 6, 2))
sketch3.addConstraint(Sketcher.Constraint("Horizontal", 11, 2, 12, 2))
sketch3.addConstraint(Sketcher.Constraint("Horizontal", 17, 2, 18, 2))
sketch3.addConstraint(Sketcher.Constraint("Equal", 0, 6))
sketch3.addConstraint(Sketcher.Constraint("Equal", 6, 12))
sketch3.addConstraint(Sketcher.Constraint("Equal", 12, 18))
sketch3.addConstraint(Sketcher.Constraint("Radius", 2, 2.0))
sketch3.addConstraint(Sketcher.Constraint("DistanceX", 0, 1, 0, 2, 8.0))
sketch3.addConstraint(Sketcher.Constraint("DistanceX", 0, 2, 17, 2, 15.0))
sketch3.addConstraint(Sketcher.Constraint("DistanceX", 18, 2, 11, 2, 15.0))
sketch3.addConstraint(Sketcher.Constraint("DistanceY", 8, 1, 6, 2, 23.2))
sketch3.addConstraint(Sketcher.Constraint("DistanceX", 2, 3, 8, 3, 73.0))
sketch3.addConstraint(Sketcher.Constraint("DistanceX", -1, 1, 2, 3, 15.5))
sketch3.addConstraint(Sketcher.Constraint("DistanceY", 2, 3, -1, 1, 95.7))
sketch3.setExpression("Constraints[56]", "Params.sketch3_radius")
sketch3.setExpression("Constraints[57]", "Params.sketch3_width")
pad2 = body.newObject("PartDesign::Pad", "Pad001")
pad2.Profile = sketch3
pad2.setExpression("Length", "Params.pad2_length")
doc.recompute()

chamfer = body.newObject("PartDesign::Chamfer", "Chamfer")
chamfer.Base = (pad2, edges_at(pad2, [(100, 3.25, 0), (0, 3.25, 0)]))
chamfer.setExpression("Size", "Params.chamfer_size")
doc.recompute()

chamfer2 = body.newObject("PartDesign::Chamfer", "Chamfer001")
chamfer2.Base = (chamfer, edges_at(chamfer, [
    (100, 3.25, -24.25),
    (100, 3.25, -50.25),
    (0, 3.25, -50.25),
    (0, 3.25, -24.25),
]))
chamfer2.setExpression("Size", "Params.chamfer2_size")

# Sketch on XZ plane
sketch4 = body.newObject("Sketcher::SketchObject", "Sketch003")
sketch4.AttachmentSupport = (doc.getObject("XZ_Plane"), [""])
sketch4.MapMode = "FlatFace"
sketch4.AttachmentOffset = App.Placement(App.Vector(0, 0, -6.5), App.Rotation())
add_polygon(sketch4, [(40.8, -16), (34.2, -16), (34.2, -8), (40.8, -8)])  # lines 0-3
add_polygon(sketch4, [(65.8, -16), (59.2, -16), (59.2, -8), (65.8, -8)])  # lines 4-7
sketch4.addGeometry(Part.Circle(App.Vector(37.5, -23.5, 0), App.Vector(0, 0, 1), 2.2), False)  # 8
sketch4.addGeometry(Part.Circle(App.Vector(62.5, -23.5, 0), App.Vector(0, 0, 1), 2.2), False)  # 9
sketch4.addConstraint(Sketcher.Constraint("Horizontal", 0))
sketch4.addConstraint(Sketcher.Constraint("Vertical", 1))
sketch4.addConstraint(Sketcher.Constraint("Horizontal", 2))
sketch4.addConstraint(Sketcher.Constraint("Vertical", 3))
sketch4.addConstraint(Sketcher.Constraint("Horizontal", 4))
sketch4.addConstraint(Sketcher.Constraint("Vertical", 5))
sketch4.addConstraint(Sketcher.Constraint("Horizontal", 6))
sketch4.addConstraint(Sketcher.Constraint("Vertical", 7))
sketch4.addConstraint(Sketcher.Constraint("Equal", 8, 9))
sketch4.addConstraint(Sketcher.Constraint("Horizontal", 8, 3, 9, 3))
sketch4.addConstraint(Sketcher.Constraint("Horizontal", 3, 2, 4, 2))
sketch4.addConstraint(Sketcher.Constraint("Horizontal", 2, 2, 5, 2))
sketch4.addConstraint(Sketcher.Constraint("Equal", 2, 4))
sketch4.addConstraint(Sketcher.Constraint("Diameter", 8, 4.5))
sketch4.addConstraint(Sketcher.Constraint("DistanceY", 1, 1, 1, 2, 8.0))
sketch4.addConstraint(Sketcher.Constraint("DistanceX", 0, 2, 0, 1, 6.5))
sketch4.addConstraint(Sketcher.Constraint("DistanceY", 1, 2, -1, 1, 8.0))
sketch4.addConstraint(Sketcher.Constraint("DistanceX", 8, 3, 9, 3, 25.0))
sketch4.addConstraint(Sketcher.Constraint("DistanceX", 0, 2, 4, 2, 25.0))
sketch4.addConstraint(Sketcher.Constraint("DistanceY", 8, 3, 0, 2, 7.5))
sketch4.addConstraint(Sketcher.Constraint("DistanceX", -1, 1, 8, 3, 37.5))
sketch4.addConstraint(Sketcher.Constraint("DistanceX", -1, 1, 0, 2, 34.25))
sketch4.setExpression("Constraints[21]", "Params.sketch4_diameter")
sketch4.setExpression("Constraints[22]", "Params.sketch4_height")
sketch4.setExpression("Constraints[23]", "Params.sketch4_width")
pocket2 = body.newObject("PartDesign::Pocket", "Pocket001")
pocket2.Profile = sketch4
pocket2.Type = "ThroughAll"
pocket2.Reversed = True

# Sketch on XZ plane
sketch5 = body.newObject("Sketcher::SketchObject", "Sketch004")
sketch5.AttachmentSupport = (doc.getObject("XZ_Plane"), [""])
sketch5.MapMode = "FlatFace"
sketch5.AttachmentOffset = App.Placement(App.Vector(0, 0, -6.5), App.Rotation())
add_polygon(sketch5, [(53.2, -40.5), (46.8, -40.5), (46.8, -32.5), (53.2, -32.5)])  # lines 0-3
sketch5.addGeometry(Part.Circle(App.Vector(50, -48, 0), App.Vector(0, 0, 1), 2.2), False)  # 4
sketch5.addConstraint(Sketcher.Constraint("Horizontal", 0))
sketch5.addConstraint(Sketcher.Constraint("Vertical", 1))
sketch5.addConstraint(Sketcher.Constraint("Horizontal", 2))
sketch5.addConstraint(Sketcher.Constraint("Vertical", 3))
sketch5.addConstraint(Sketcher.Constraint("Diameter", 4, 4.5))
sketch5.addConstraint(Sketcher.Constraint("DistanceY", 1, 1, 1, 2, 8.0))
sketch5.addConstraint(Sketcher.Constraint("DistanceX", 0, 2, 0, 1, 6.5))
sketch5.addConstraint(Sketcher.Constraint("DistanceY", 4, 3, 0, 2, 7.5))
sketch5.addConstraint(Sketcher.Constraint("DistanceX", -1, 1, 4, 3, 50.0))
sketch5.addConstraint(Sketcher.Constraint("DistanceY", 4, 3, -1, 1, 48.0))
sketch5.addConstraint(Sketcher.Constraint("DistanceX", -1, 1, 0, 2, 46.75))
sketch5.setExpression("Constraints[8]", "Params.sketch5_diameter")
sketch5.setExpression("Constraints[9]", "Params.sketch5_height")
sketch5.setExpression("Constraints[10]", "Params.sketch5_width")
pocket3 = body.newObject("PartDesign::Pocket", "Pocket002")
pocket3.Profile = sketch5
pocket3.Type = "ThroughAll"
pocket3.Reversed = True

doc.recompute()
